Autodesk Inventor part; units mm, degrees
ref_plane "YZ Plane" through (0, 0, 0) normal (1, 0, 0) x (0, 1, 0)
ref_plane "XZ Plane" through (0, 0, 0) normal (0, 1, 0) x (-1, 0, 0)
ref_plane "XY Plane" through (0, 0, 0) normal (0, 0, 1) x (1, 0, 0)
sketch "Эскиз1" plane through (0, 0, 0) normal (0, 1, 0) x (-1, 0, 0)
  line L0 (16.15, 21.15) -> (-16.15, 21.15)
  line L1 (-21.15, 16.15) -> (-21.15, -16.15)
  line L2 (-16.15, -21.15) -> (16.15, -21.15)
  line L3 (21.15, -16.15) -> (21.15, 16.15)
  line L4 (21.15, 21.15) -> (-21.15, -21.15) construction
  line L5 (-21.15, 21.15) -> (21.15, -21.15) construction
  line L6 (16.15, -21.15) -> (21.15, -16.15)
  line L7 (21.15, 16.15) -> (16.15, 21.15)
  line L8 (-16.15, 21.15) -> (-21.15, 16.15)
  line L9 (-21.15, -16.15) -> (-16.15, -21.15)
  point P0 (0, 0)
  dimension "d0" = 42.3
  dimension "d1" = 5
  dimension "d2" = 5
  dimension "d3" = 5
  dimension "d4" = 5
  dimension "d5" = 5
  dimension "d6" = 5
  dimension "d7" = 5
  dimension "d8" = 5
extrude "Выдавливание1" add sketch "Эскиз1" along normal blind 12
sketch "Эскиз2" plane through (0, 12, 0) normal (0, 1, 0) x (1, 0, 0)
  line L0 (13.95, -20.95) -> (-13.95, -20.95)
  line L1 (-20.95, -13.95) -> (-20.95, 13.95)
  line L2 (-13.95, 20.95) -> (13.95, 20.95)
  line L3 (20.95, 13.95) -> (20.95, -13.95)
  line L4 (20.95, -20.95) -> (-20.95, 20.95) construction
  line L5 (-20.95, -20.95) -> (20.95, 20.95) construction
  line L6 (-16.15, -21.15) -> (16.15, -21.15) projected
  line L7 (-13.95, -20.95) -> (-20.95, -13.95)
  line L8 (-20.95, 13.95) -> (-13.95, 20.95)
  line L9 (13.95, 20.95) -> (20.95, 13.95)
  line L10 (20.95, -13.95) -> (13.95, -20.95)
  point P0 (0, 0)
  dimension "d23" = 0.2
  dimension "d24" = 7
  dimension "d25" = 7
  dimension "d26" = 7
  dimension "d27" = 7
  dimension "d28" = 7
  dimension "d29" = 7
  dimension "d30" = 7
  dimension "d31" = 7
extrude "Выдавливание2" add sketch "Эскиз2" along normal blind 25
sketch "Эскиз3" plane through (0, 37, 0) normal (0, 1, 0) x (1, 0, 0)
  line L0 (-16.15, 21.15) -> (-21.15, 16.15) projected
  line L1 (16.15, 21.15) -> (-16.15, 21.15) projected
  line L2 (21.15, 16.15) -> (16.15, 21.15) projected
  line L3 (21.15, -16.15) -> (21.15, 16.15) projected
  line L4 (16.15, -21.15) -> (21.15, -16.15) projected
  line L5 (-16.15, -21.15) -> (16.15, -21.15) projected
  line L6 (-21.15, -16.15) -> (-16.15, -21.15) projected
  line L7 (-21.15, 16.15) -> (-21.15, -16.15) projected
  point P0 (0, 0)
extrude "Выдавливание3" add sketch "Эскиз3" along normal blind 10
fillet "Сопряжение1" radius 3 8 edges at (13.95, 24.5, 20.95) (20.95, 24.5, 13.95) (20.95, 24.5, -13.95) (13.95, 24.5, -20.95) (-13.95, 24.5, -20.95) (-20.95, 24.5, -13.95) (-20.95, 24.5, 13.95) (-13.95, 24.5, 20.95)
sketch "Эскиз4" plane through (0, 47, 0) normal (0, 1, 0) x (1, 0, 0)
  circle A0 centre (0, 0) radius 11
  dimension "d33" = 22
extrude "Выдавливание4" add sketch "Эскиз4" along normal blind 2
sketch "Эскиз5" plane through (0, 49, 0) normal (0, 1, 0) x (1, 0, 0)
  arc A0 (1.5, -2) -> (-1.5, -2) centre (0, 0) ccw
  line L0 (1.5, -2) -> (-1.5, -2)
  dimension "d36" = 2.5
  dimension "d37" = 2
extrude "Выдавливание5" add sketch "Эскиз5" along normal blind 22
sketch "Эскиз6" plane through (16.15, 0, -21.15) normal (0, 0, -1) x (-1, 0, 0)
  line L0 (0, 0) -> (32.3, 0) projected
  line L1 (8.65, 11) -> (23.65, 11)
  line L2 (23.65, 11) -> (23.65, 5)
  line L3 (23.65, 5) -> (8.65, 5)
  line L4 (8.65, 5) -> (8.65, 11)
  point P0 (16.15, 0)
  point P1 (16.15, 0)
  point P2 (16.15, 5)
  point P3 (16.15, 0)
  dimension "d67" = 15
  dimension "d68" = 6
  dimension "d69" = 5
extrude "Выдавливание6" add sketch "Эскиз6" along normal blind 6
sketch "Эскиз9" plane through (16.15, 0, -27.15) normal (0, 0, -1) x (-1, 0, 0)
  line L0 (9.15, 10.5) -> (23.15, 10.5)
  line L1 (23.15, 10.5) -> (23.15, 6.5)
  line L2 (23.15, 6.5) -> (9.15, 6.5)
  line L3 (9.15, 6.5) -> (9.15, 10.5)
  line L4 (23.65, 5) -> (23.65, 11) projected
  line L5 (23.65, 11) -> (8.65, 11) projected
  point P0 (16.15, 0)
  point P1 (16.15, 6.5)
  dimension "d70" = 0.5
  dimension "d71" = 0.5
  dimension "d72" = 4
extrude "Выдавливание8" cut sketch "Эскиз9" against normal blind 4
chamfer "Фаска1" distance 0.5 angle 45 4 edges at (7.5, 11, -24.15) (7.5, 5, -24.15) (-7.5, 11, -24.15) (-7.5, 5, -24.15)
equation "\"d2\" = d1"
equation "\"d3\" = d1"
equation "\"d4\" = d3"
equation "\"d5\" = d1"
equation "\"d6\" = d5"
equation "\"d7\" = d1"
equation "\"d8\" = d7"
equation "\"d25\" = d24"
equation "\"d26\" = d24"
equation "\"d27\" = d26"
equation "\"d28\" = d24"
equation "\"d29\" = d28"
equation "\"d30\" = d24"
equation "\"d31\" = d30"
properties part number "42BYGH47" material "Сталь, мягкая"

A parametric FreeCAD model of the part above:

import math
import FreeCAD as App
import Part
import Sketcher
Q = App.Units.Quantity


def edges_at(feature, points):
    """Names of the edges that pass closest to the given points."""
    edges = feature.Shape.Edges
    near = lambda p: min(range(len(edges)), key=lambda i: edges[i].distToShape(Part.Vertex(*p))[0])
    return sorted({f"Edge{near(p) + 1}" for p in points})

doc = App.newDocument("Part")
body = doc.addObject("PartDesign::Body", "Body")

sketch1 = body.newObject("Sketcher::SketchObject", "Sketch")
sketch1.AttachmentSupport = (doc.getObject("XZ_Plane"), [""])
sketch1.MapMode = "FlatFace"
sketch1.addGeometry([
    Part.LineSegment(App.Vector(-21, 16, 0), App.Vector(-16, 21, 0)),
    Part.LineSegment(App.Vector(-16, 21, 0), App.Vector(16, 21, 0)),
    Part.LineSegment(App.Vector(16, 21, 0), App.Vector(21, 16, 0)),
    Part.LineSegment(App.Vector(21, 16, 0), App.Vector(21, -16, 0)),
    Part.LineSegment(App.Vector(21, -16, 0), App.Vector(16, -21, 0)),
    Part.LineSegment(App.Vector(16, -21, 0), App.Vector(-16, -21, 0)),
    Part.LineSegment(App.Vector(-16, -21, 0), App.Vector(-21, -16, 0)),
    Part.LineSegment(App.Vector(-21, -16, 0), App.Vector(-21, 16, 0)),
], False)
sketch1.addConstraint([
    Sketcher.Constraint("Coincident", 0, 2, 1, 1),
    Sketcher.Constraint("Coincident", 1, 2, 2, 1),
    Sketcher.Constraint("Coincident", 2, 2, 3, 1),
    Sketcher.Constraint("Coincident", 3, 2, 4, 1),
    Sketcher.Constraint("Coincident", 4, 2, 5, 1),
    Sketcher.Constraint("Coincident", 5, 2, 6, 1),
    Sketcher.Constraint("Coincident", 6, 2, 7, 1),
    Sketcher.Constraint("Coincident", 7, 2, 0, 1),
    Sketcher.Constraint("Horizontal", 1),
    Sketcher.Constraint("Vertical", 3),
    Sketcher.Constraint("Horizontal", 5),
    Sketcher.Constraint("Vertical", 7),
    Sketcher.Constraint("Symmetric", 0, 2, 4, 2, -1, 1),
    Sketcher.Constraint("Symmetric", 2, 2, 6, 2, -1, 1),
    Sketcher.Constraint("Perpendicular", 0, 2),
    Sketcher.Constraint("Perpendicular", 2, 4),
    Sketcher.Constraint("Perpendicular", 4, 6),
    Sketcher.Constraint("Horizontal", 3, 2, 6, 2),
    Sketcher.Constraint("Vertical", 1, 2, 4, 2),
    Sketcher.Constraint("Equal", 5, 3),
    Sketcher.Constraint("DistanceX", 1, 2, 2, 2, Q("5 mm")),
    Sketcher.Constraint("DistanceY", 4, 2, 1, 2, Q("42.3 mm")),
])
pad1 = body.newObject("PartDesign::Pad", "Pad")
pad1.Profile = sketch1
pad1.Length = 12
pad1.Reversed = True

sketch2 = body.newObject("Sketcher::SketchObject", "Sketch001")
sketch2.AttachmentSupport = (doc.getObject("XZ_Plane"), [""])
sketch2.MapMode = "FlatFace"
sketch2.AttachmentOffset = App.Placement(App.Vector(0, 0, -12), App.Rotation())
sketch2.addGeometry([
    Part.LineSegment(App.Vector(-14, 21, 0), App.Vector(14, 21, 0)),
    Part.LineSegment(App.Vector(14, 21, 0), App.Vector(21, 14, 0)),
    Part.LineSegment(App.Vector(21, 14, 0), App.Vector(21, -14, 0)),
    Part.LineSegment(App.Vector(21, -14, 0), App.Vector(14, -21, 0)),
    Part.LineSegment(App.Vector(14, -21, 0), App.Vector(-14, -21, 0)),
    Part.LineSegment(App.Vector(-14, -21, 0), App.Vector(-21, -14, 0)),
    Part.LineSegment(App.Vector(-21, -14, 0), App.Vector(-21, 14, 0)),
    Part.LineSegment(App.Vector(-21, 14, 0), App.Vector(-14, 21, 0)),
], False)
sketch2.addConstraint([
    Sketcher.Constraint("Coincident", 0, 2, 1, 1),
    Sketcher.Constraint("Coincident", 1, 2, 2, 1),
    Sketcher.Constraint("Coincident", 2, 2, 3, 1),
    Sketcher.Constraint("Coincident", 3, 2, 4, 1),
    Sketcher.Constraint("Coincident", 4, 2, 5, 1),
    Sketcher.Constraint("Coincident", 5, 2, 6, 1),
    Sketcher.Constraint("Coincident", 6, 2, 7, 1),
    Sketcher.Constraint("Coincident", 7, 2, 0, 1),
    Sketcher.Constraint("Horizontal", 0),
    Sketcher.Constraint("Vertical", 2),
    Sketcher.Constraint("Horizontal", 4),
    Sketcher.Constraint("Vertical", 6),
    Sketcher.Constraint("Symmetric", 0, 2, 4, 2, -1, 1),
    Sketcher.Constraint("Symmetric", 1, 2, 5, 2, -1, 1),
    Sketcher.Constraint("Perpendicular", 1, 3),
    Sketcher.Constraint("Perpendicular", 5, 7),
    Sketcher.Constraint("Horizontal", 2, 2, 5, 2),
    Sketcher.Constraint("Horizontal", 1, 2, 6, 2),
    Sketcher.Constraint("Vertical", 0, 2, 3, 2),
    Sketcher.Constraint("Equal", 4, 2),
    Sketcher.Constraint("DistanceX", 0, 2, 1, 2, Q("7 mm")),
    Sketcher.Constraint("DistanceX", 0, 1, 0, 2, Q("27.9 mm")),
])
pad2 = body.newObject("PartDesign::Pad", "Pad001")
pad2.Profile = sketch2
pad2.Length = 25
pad2.Reversed = True

sketch3 = body.newObject("Sketcher::SketchObject", "Sketch002")
sketch3.AttachmentSupport = (doc.getObject("XZ_Plane"), [""])
sketch3.MapMode = "FlatFace"
sketch3.AttachmentOffset = App.Placement(App.Vector(0, 0, -37), App.Rotation())
sketch3.addGeometry([
    Part.LineSegment(App.Vector(16, -21, 0), App.Vector(-16, -21, 0)),
    Part.LineSegment(App.Vector(-16, -21, 0), App.Vector(-21, -16, 0)),
    Part.LineSegment(App.Vector(-21, -16, 0), App.Vector(-21, 16, 0)),
    Part.LineSegment(App.Vector(-21, 16, 0), App.Vector(-16, 21, 0)),
    Part.LineSegment(App.Vector(-16, 21, 0), App.Vector(16, 21, 0)),
    Part.LineSegment(App.Vector(16, 21, 0), App.Vector(21, 16, 0)),
    Part.LineSegment(App.Vector(21, 16, 0), App.Vector(21, -16, 0)),
    Part.LineSegment(App.Vector(21, -16, 0), App.Vector(16, -21, 0)),
], False)
sketch3.addConstraint([
    Sketcher.Constraint("Coincident", 0, 2, 1, 1),
    Sketcher.Constraint("Coincident", 1, 2, 2, 1),
    Sketcher.Constraint("Coincident", 2, 2, 3, 1),
    Sketcher.Constraint("Coincident", 3, 2, 4, 1),
    Sketcher.Constraint("Coincident", 4, 2, 5, 1),
    Sketcher.Constraint("Coincident", 5, 2, 6, 1),
    Sketcher.Constraint("Coincident", 6, 2, 7, 1),
    Sketcher.Constraint("Coincident", 7, 2, 0, 1),
    Sketcher.Constraint("Horizontal", 0),
    Sketcher.Constraint("Vertical", 2),
    Sketcher.Constraint("Horizontal", 4),
    Sketcher.Constraint("Vertical", 6),
    Sketcher.Constraint("Symmetric", 0, 2, 4, 2, -1, 1),
    Sketcher.Constraint("Symmetric", 1, 2, 5, 2, -1, 1),
    Sketcher.Constraint("Perpendicular", 1, 3),
    Sketcher.Constraint("Perpendicular", 5, 7),
    Sketcher.Constraint("Horizontal", 2, 2, 5, 2),
    Sketcher.Constraint("Horizontal", 1, 2, 6, 2),
    Sketcher.Constraint("Vertical", 0, 2, 3, 2),
    Sketcher.Constraint("Equal", 4, 2),
    Sketcher.Constraint("DistanceX", 0, 2, 0, 1, Q("32.3 mm")),
    Sketcher.Constraint("DistanceX", 1, 2, 0, 2, Q("5 mm")),
])
pad3 = body.newObject("PartDesign::Pad", "Pad002")
pad3.Profile = sketch3
pad3.Length = 10
pad3.Reversed = True
doc.recompute()

fillet = body.newObject("PartDesign::Fillet", "Fillet")
fillet.Base = (pad3, edges_at(pad3, [
    (13.95, 24.5, 20.95),
    (20.95, 24.5, 13.95),
    (20.95, 24.5, -13.95),
    (13.95, 24.5, -20.95),
    (-13.95, 24.5, -20.95),
    (-20.95, 24.5, -13.95),
    (-20.95, 24.5, 13.95),
    (-13.95, 24.5, 20.95),
]))
fillet.Radius = 3

sketch4 = body.newObject("Sketcher::SketchObject", "Sketch003")
sketch4.AttachmentSupport = (doc.getObject("XZ_Plane"), [""])
sketch4.MapMode = "FlatFace"
sketch4.AttachmentOffset = App.Placement(App.Vector(0, 0, -47), App.Rotation())
sketch4.addGeometry(Part.Circle(App.Vector(0, 0, 0), App.Vector(0, 0, 1), 11), False)
sketch4.addConstraint([
    Sketcher.Constraint("Coincident", 0, 3, -1, 1),
    Sketcher.Constraint("Diameter", 0, Q("22 mm")),
])
pad4 = body.newObject("PartDesign::Pad", "Pad003")
pad4.Profile = sketch4
pad4.Length = 2
pad4.Reversed = True

sketch5 = body.newObject("Sketcher::SketchObject", "Sketch004")
sketch5.AttachmentSupport = (doc.getObject("XZ_Plane"), [""])
sketch5.MapMode = "FlatFace"
sketch5.AttachmentOffset = App.Placement(App.Vector(0, 0, -49), App.Rotation())
sketch5.addGeometry([
    Part.LineSegment(App.Vector(-1.5, 2, 0), App.Vector(1.5, 2, 0)),
    Part.ArcOfCircle(Part.Circle(App.Vector(0, 0, 0), App.Vector(0, 0, 1), 2.5), math.radians(127), math.radians(413)),
], False)
sketch5.addConstraint([
    Sketcher.Constraint("Coincident", 0, 1, 1, 1),
    Sketcher.Constraint("Coincident", 1, 2, 0, 2),
    Sketcher.Constraint("Horizontal", 0),
    Sketcher.Constraint("Coincident", 1, 3, -1, 1),
    Sketcher.Constraint("Radius", 1, Q("2.5 mm")),
    Sketcher.Constraint("DistanceY", -1, 1, 0, 1, Q("2 mm")),
])
pad5 = body.newObject("PartDesign::Pad", "Pad004")
pad5.Profile = sketch5
pad5.Length = 22
pad5.Reversed = True

sketch6 = body.newObject("Sketcher::SketchObject", "Sketch005")
sketch6.AttachmentSupport = (doc.getObject("XY_Plane"), [""])
sketch6.MapMode = "FlatFace"
sketch6.AttachmentOffset = App.Placement(App.Vector(0, 0, -21.15), App.Rotation())
sketch6.addGeometry([
    Part.LineSegment(App.Vector(-8, 11, 0), App.Vector(8, 11, 0)),
    Part.LineSegment(App.Vector(8, 11, 0), App.Vector(8, 5, 0)),
    Part.LineSegment(App.Vector(8, 5, 0), App.Vector(-8, 5, 0)),
    Part.LineSegment(App.Vector(-8, 5, 0), App.Vector(-8, 11, 0)),
], False)
sketch6.addConstraint([
    Sketcher.Constraint("Coincident", 0, 2, 1, 1),
    Sketcher.Constraint("Coincident", 1, 2, 2, 1),
    Sketcher.Constraint("Coincident", 2, 2, 3, 1),
    Sketcher.Constraint("Coincident", 3, 2, 0, 1),
    Sketcher.Constraint("Horizontal", 0),
    Sketcher.Constraint("Vertical", 1),
    Sketcher.Constraint("Horizontal", 2),
    Sketcher.Constraint("Vertical", 3),
    Sketcher.Constraint("DistanceX", 0, 1, 0, 2, Q("15 mm")),
    Sketcher.Constraint("DistanceY", 1, 2, 1, 1, Q("6 mm")),
    Sketcher.Constraint("DistanceY", -1, 1, 1, 2, Q("5 mm")),
    Sketcher.Constraint("DistanceX", -1, 1, 0, 2, Q("7.5 mm")),
])
pad6 = body.newObject("PartDesign::Pad", "Pad005")
pad6.Profile = sketch6
pad6.Length = 6
pad6.Reversed = True

sketch7 = body.newObject("Sketcher::SketchObject", "Sketch006")
sketch7.AttachmentSupport = (doc.getObject("XY_Plane"), [""])
sketch7.MapMode = "FlatFace"
sketch7.AttachmentOffset = App.Placement(App.Vector(0, 0, -27.15), App.Rotation())
sketch7.addGeometry([
    Part.LineSegment(App.Vector(-7, 10.5, 0), App.Vector(7, 10.5, 0)),
    Part.LineSegment(App.Vector(7, 10.5, 0), App.Vector(7, 6.5, 0)),
    Part.LineSegment(App.Vector(7, 6.5, 0), App.Vector(-7, 6.5, 0)),
    Part.LineSegment(App.Vector(-7, 6.5, 0), App.Vector(-7, 10.5, 0)),
], False)
sketch7.addConstraint([
    Sketcher.Constraint("Coincident", 0, 2, 1, 1),
    Sketcher.Constraint("Coincident", 1, 2, 2, 1),
    Sketcher.Constraint("Coincident", 2, 2, 3, 1),
    Sketcher.Constraint("Coincident", 3, 2, 0, 1),
    Sketcher.Constraint("Horizontal", 0),
    Sketcher.Constraint("Vertical", 1),
    Sketcher.Constraint("Horizontal", 2),
    Sketcher.Constraint("Vertical", 3),
    Sketcher.Constraint("DistanceY", 1, 2, 1, 1, Q("4 mm")),
    Sketcher.Constraint("DistanceX", 0, 1, 0, 2, Q("14 mm")),
    Sketcher.Constraint("DistanceX", -1, 1, 0, 2, Q("7 mm")),
    Sketcher.Constraint("DistanceY", -1, 1, 0, 2, Q("10.5 mm")),
])
pocket1 = body.newObject("PartDesign::Pocket", "Pocket")
pocket1.Profile = sketch7
pocket1.Length = 4
pocket1.Reversed = True
doc.recompute()

chamfer = body.newObject("PartDesign::Chamfer", "Chamfer")
chamfer.Base = (pocket1, edges_at(pocket1, [
    (7.5, 11, -24.15),
    (7.5, 5, -24.15),
    (-7.5, 11, -24.15),
    (-7.5, 5, -24.15),
]))
chamfer.Size = 0.5

doc.recompute()
